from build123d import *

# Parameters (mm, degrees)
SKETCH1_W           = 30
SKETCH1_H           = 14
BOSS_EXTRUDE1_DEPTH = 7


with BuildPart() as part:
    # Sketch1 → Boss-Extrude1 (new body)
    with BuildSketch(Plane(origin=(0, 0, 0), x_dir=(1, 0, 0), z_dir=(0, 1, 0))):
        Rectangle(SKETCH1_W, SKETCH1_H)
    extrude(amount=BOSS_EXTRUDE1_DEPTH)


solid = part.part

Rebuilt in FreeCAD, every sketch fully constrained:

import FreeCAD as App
import Part
import Sketcher

V = App.Vector

doc = App.newDocument("Part")
params = doc.addObject("Spreadsheet::Sheet", "Params")
for row, (alias, value) in enumerate([
    ("sketch1_width", "30 mm"),
    ("sketch1_height", "14 mm"),
    ("pad1_length", "7 mm"),
], start=1):
    params.set(f"A{row}", alias)
    params.set(f"B{row}", "=" + value)
    params.setAlias(f"B{row}", alias)

body = doc.addObject("PartDesign::Body", "Body")

sketch1 = body.newObject("Sketcher::SketchObject", "Sketch")
sketch1.AttachmentSupport = (doc.getObject("XZ_Plane"), [""])
sketch1.MapMode = "FlatFace"
sketch1.addGeometry(Part.LineSegment(V(-15, -7, 0), V(-15, 7, 0)), False)
sketch1.addGeometry(Part.LineSegment(V(-15, 7, 0), V(15, 7, 0)), False)
sketch1.addGeometry(Part.LineSegment(V(15, 7, 0), V(15, -7, 0)), False)
sketch1.addGeometry(Part.LineSegment(V(15, -7, 0), V(-15, -7, 0)), False)
sketch1.addConstraint(Sketcher.Constraint("Coincident", 0, 2, 1, 1))
sketch1.addConstraint(Sketcher.Constraint("Coincident", 1, 2, 2, 1))
sketch1.addConstraint(Sketcher.Constraint("Coincident", 2, 2, 3, 1))
sketch1.addConstraint(Sketcher.Constraint("Coincident", 3, 2, 0, 1))
sketch1.addConstraint(Sketcher.Constraint("Vertical", 0))
sketch1.addConstraint(Sketcher.Constraint("Horizontal", 1))
sketch1.addConstraint(Sketcher.Constraint("Vertical", 2))
sketch1.addConstraint(Sketcher.Constraint("Horizontal", 3))
sketch1.addConstraint(Sketcher.Constraint("Symmetric", 0, 2, 2, 2, -1, 1))
sketch1.addConstraint(Sketcher.Constraint("DistanceX", 1, 1, 1, 2, 30.0))
sketch1.addConstraint(Sketcher.Constraint("DistanceY", 0, 1, 0, 2, 14.0))
sketch1.setExpression("Constraints[9]", "Params.sketch1_width")
sketch1.setExpression("Constraints[10]", "Params.sketch1_height")
pad1 = body.newObject("PartDesign::Pad", "Pad")
pad1.Profile = sketch1
pad1.setExpression("Length", "Params.pad1_length")
pad1.Reversed = True

doc.recompute()
